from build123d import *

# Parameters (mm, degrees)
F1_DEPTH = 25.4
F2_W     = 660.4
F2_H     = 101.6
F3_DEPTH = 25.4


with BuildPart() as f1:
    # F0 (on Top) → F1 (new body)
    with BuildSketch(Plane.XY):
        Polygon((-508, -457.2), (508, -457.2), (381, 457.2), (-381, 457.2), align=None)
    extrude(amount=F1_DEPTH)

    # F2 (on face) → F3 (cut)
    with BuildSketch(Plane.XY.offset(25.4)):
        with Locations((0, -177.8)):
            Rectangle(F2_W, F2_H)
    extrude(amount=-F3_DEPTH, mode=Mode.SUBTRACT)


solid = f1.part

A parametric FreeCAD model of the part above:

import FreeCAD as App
import Part
import Sketcher
from FreeCAD import Vector
Q = App.Units.Quantity


def add_polygon(sketch, points):
    """Adds a closed chain of lines whose ends are joined by coincident constraints."""
    first, n = sketch.GeometryCount, len(points)
    for a, b in zip(points, points[1:] + points[:1]):
        sketch.addGeometry(Part.LineSegment(App.Vector(*a, 0), App.Vector(*b, 0)), False)
    for i in range(n):
        sketch.addConstraint(Sketcher.Constraint("Coincident", first + i, 2, first + (i + 1) % n, 1))

doc = App.newDocument("Part")
params = doc.addObject("Spreadsheet::Sheet", "Params")
for row, (alias, value) in enumerate([
    ("sketch1_width", "40 in"),
    ("sketch1_width2", "30 in"),
    ("pad1_length", "1 in"),
    ("sketch2_width", "26 in"),
    ("sketch2_height", "4 in"),
    ("pocket1_length", "1 in"),
], start=1):
    params.set(f"A{row}", alias)
    params.set(f"B{row}", "=" + value)
    params.setAlias(f"B{row}", alias)

body = doc.addObject("PartDesign::Body", "Body")

# Sketch on XY plane
sketch1 = body.newObject("Sketcher::SketchObject", "Sketch")
sketch1.AttachmentSupport = (doc.getObject("XY_Plane"), [""])
sketch1.MapMode = "FlatFace"
add_polygon(sketch1, [(-508, -457.2), (508, -457.2), (381, 457.2), (-381, 457.2)])  # lines 0-3
sketch1.addConstraint([
    Sketcher.Constraint("Horizontal", 0),
    Sketcher.Constraint("Horizontal", 2),
    Sketcher.Constraint("Equal", 1, 3),
    Sketcher.Constraint("DistanceX", 0, 1, 0, 2, Q("40 in")),
    Sketcher.Constraint("DistanceX", 2, 2, 2, 1, Q("30 in")),
    Sketcher.Constraint("DistanceX", -1, 1, 0, 2, Q("20 in")),
    Sketcher.Constraint("DistanceY", 0, 2, -1, 1, Q("18 in")),
    Sketcher.Constraint("DistanceY", -1, 1, 1, 2, Q("18 in")),
])
sketch1.setExpression("Constraints[7]", "Params.sketch1_width")
sketch1.setExpression("Constraints[8]", "Params.sketch1_width2")
pad1 = body.newObject("PartDesign::Pad", "Pad")
pad1.Profile = sketch1
pad1.setExpression("Length", "Params.pad1_length")

# Sketch on XY plane
sketch2 = body.newObject("Sketcher::SketchObject", "Sketch001")
sketch2.AttachmentSupport = (doc.getObject("XY_Plane"), [""])
sketch2.MapMode = "FlatFace"
sketch2.AttachmentOffset = App.Placement(Vector(0, 0, 1 * 25.4), App.Rotation())
add_polygon(sketch2, [(-330.2, -127), (-330.2, -228.6), (330.2, -228.6), (330.2, -127)])  # lines 0-3
sketch2.addConstraint([
    Sketcher.Constraint("Vertical", 0),
    Sketcher.Constraint("Horizontal", 1),
    Sketcher.Constraint("Vertical", 2),
    Sketcher.Constraint("Horizontal", 3),
    Sketcher.Constraint("DistanceX", 1, 1, 1, 2, Q("26 in")),
    Sketcher.Constraint("DistanceY", 0, 2, 0, 1, Q("4 in")),
    Sketcher.Constraint("DistanceX", 0, 2, -1, 1, Q("13 in")),
    Sketcher.Constraint("DistanceY", 0, 2, -1, 1, Q("9 in")),
])
sketch2.setExpression("Constraints[8]", "Params.sketch2_width")
sketch2.setExpression("Constraints[9]", "Params.sketch2_height")
pocket1 = body.newObject("PartDesign::Pocket", "Pocket")
pocket1.Profile = sketch2
pocket1.setExpression("Length", "Params.pocket1_length")

doc.recompute()
